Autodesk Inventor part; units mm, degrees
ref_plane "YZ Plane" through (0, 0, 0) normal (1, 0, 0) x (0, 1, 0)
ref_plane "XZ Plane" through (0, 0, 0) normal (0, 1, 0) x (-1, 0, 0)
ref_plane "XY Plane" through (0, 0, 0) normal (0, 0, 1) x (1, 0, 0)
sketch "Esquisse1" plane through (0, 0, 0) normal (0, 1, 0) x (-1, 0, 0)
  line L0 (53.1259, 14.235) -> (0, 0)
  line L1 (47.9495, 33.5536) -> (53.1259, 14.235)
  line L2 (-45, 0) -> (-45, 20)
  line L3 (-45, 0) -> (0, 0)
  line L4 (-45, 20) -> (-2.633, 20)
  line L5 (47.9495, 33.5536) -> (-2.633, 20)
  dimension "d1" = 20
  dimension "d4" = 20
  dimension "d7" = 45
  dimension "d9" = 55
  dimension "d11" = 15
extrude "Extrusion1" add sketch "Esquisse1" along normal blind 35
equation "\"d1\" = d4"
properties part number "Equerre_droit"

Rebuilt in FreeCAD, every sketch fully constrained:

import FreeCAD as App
import Part
import Sketcher

V = App.Vector
Q = App.Units.Quantity

doc = App.newDocument("Part")
params = doc.addObject("Spreadsheet::Sheet", "Params")
for row, (alias, value) in enumerate([
    ("sketch1_width", "45 mm"),
    ("sketch1_height", "20 mm"),
    ("sketch1_length", "55 mm"),
    ("sketch1_length2", "20 mm"),
    ("pad1_length", "35 mm"),
], start=1):
    params.set(f"A{row}", alias)
    params.set(f"B{row}", "=" + value)
    params.setAlias(f"B{row}", alias)

body = doc.addObject("PartDesign::Body", "Body")

sketch1 = body.newObject("Sketcher::SketchObject", "Sketch")
sketch1.AttachmentSupport = (doc.getObject("XZ_Plane"), [""])
sketch1.MapMode = "FlatFace"
sketch1.addGeometry(Part.LineSegment(V(0, 0, 0), V(-53.1259, 14.235, 0)), False)
sketch1.addGeometry(Part.LineSegment(V(-53.1259, 14.235, 0), V(-47.9495, 33.5536, 0)), False)
sketch1.addGeometry(Part.LineSegment(V(-47.9495, 33.5536, 0), V(2.633, 20, 0)), False)
sketch1.addGeometry(Part.LineSegment(V(2.633, 20, 0), V(45, 20, 0)), False)
sketch1.addGeometry(Part.LineSegment(V(45, 20, 0), V(45, 0, 0)), False)
sketch1.addGeometry(Part.LineSegment(V(45, 0, 0), V(0, 0, 0)), False)
sketch1.addConstraint(Sketcher.Constraint("Coincident", 0, 2, 1, 1))
sketch1.addConstraint(Sketcher.Constraint("Coincident", 1, 2, 2, 1))
sketch1.addConstraint(Sketcher.Constraint("Coincident", 2, 2, 3, 1))
sketch1.addConstraint(Sketcher.Constraint("Coincident", 3, 2, 4, 1))
sketch1.addConstraint(Sketcher.Constraint("Coincident", 4, 2, 5, 1))
sketch1.addConstraint(Sketcher.Constraint("Coincident", 5, 2, 0, 1))
sketch1.addConstraint(Sketcher.Constraint("Horizontal", 3))
sketch1.addConstraint(Sketcher.Constraint("Vertical", 4))
sketch1.addConstraint(Sketcher.Constraint("Horizontal", 5))
sketch1.addConstraint(Sketcher.Constraint("Coincident", 5, 2, -1, 1))
sketch1.addConstraint(Sketcher.Constraint("Perpendicular", 0, 1))
sketch1.addConstraint(Sketcher.Constraint("Perpendicular", 1, 2))
sketch1.addConstraint(Sketcher.Constraint("DistanceX", 5, 2, 5, 1, 45.0))
sketch1.addConstraint(Sketcher.Constraint("DistanceY", 4, 2, 4, 1, 20.0))
sketch1.addConstraint(Sketcher.Constraint("Angle", 2, Q("-15 deg")))
sketch1.addConstraint(Sketcher.Constraint("Distance", 0, 55.0))
sketch1.addConstraint(Sketcher.Constraint("Distance", 1, 20.0))
sketch1.setExpression("Constraints[12]", "Params.sketch1_width")
sketch1.setExpression("Constraints[13]", "Params.sketch1_height")
sketch1.setExpression("Constraints[15]", "Params.sketch1_length")
sketch1.setExpression("Constraints[16]", "Params.sketch1_length2")
pad1 = body.newObject("PartDesign::Pad", "Pad")
pad1.Profile = sketch1
pad1.setExpression("Length", "Params.pad1_length")
pad1.Reversed = True

doc.recompute()
